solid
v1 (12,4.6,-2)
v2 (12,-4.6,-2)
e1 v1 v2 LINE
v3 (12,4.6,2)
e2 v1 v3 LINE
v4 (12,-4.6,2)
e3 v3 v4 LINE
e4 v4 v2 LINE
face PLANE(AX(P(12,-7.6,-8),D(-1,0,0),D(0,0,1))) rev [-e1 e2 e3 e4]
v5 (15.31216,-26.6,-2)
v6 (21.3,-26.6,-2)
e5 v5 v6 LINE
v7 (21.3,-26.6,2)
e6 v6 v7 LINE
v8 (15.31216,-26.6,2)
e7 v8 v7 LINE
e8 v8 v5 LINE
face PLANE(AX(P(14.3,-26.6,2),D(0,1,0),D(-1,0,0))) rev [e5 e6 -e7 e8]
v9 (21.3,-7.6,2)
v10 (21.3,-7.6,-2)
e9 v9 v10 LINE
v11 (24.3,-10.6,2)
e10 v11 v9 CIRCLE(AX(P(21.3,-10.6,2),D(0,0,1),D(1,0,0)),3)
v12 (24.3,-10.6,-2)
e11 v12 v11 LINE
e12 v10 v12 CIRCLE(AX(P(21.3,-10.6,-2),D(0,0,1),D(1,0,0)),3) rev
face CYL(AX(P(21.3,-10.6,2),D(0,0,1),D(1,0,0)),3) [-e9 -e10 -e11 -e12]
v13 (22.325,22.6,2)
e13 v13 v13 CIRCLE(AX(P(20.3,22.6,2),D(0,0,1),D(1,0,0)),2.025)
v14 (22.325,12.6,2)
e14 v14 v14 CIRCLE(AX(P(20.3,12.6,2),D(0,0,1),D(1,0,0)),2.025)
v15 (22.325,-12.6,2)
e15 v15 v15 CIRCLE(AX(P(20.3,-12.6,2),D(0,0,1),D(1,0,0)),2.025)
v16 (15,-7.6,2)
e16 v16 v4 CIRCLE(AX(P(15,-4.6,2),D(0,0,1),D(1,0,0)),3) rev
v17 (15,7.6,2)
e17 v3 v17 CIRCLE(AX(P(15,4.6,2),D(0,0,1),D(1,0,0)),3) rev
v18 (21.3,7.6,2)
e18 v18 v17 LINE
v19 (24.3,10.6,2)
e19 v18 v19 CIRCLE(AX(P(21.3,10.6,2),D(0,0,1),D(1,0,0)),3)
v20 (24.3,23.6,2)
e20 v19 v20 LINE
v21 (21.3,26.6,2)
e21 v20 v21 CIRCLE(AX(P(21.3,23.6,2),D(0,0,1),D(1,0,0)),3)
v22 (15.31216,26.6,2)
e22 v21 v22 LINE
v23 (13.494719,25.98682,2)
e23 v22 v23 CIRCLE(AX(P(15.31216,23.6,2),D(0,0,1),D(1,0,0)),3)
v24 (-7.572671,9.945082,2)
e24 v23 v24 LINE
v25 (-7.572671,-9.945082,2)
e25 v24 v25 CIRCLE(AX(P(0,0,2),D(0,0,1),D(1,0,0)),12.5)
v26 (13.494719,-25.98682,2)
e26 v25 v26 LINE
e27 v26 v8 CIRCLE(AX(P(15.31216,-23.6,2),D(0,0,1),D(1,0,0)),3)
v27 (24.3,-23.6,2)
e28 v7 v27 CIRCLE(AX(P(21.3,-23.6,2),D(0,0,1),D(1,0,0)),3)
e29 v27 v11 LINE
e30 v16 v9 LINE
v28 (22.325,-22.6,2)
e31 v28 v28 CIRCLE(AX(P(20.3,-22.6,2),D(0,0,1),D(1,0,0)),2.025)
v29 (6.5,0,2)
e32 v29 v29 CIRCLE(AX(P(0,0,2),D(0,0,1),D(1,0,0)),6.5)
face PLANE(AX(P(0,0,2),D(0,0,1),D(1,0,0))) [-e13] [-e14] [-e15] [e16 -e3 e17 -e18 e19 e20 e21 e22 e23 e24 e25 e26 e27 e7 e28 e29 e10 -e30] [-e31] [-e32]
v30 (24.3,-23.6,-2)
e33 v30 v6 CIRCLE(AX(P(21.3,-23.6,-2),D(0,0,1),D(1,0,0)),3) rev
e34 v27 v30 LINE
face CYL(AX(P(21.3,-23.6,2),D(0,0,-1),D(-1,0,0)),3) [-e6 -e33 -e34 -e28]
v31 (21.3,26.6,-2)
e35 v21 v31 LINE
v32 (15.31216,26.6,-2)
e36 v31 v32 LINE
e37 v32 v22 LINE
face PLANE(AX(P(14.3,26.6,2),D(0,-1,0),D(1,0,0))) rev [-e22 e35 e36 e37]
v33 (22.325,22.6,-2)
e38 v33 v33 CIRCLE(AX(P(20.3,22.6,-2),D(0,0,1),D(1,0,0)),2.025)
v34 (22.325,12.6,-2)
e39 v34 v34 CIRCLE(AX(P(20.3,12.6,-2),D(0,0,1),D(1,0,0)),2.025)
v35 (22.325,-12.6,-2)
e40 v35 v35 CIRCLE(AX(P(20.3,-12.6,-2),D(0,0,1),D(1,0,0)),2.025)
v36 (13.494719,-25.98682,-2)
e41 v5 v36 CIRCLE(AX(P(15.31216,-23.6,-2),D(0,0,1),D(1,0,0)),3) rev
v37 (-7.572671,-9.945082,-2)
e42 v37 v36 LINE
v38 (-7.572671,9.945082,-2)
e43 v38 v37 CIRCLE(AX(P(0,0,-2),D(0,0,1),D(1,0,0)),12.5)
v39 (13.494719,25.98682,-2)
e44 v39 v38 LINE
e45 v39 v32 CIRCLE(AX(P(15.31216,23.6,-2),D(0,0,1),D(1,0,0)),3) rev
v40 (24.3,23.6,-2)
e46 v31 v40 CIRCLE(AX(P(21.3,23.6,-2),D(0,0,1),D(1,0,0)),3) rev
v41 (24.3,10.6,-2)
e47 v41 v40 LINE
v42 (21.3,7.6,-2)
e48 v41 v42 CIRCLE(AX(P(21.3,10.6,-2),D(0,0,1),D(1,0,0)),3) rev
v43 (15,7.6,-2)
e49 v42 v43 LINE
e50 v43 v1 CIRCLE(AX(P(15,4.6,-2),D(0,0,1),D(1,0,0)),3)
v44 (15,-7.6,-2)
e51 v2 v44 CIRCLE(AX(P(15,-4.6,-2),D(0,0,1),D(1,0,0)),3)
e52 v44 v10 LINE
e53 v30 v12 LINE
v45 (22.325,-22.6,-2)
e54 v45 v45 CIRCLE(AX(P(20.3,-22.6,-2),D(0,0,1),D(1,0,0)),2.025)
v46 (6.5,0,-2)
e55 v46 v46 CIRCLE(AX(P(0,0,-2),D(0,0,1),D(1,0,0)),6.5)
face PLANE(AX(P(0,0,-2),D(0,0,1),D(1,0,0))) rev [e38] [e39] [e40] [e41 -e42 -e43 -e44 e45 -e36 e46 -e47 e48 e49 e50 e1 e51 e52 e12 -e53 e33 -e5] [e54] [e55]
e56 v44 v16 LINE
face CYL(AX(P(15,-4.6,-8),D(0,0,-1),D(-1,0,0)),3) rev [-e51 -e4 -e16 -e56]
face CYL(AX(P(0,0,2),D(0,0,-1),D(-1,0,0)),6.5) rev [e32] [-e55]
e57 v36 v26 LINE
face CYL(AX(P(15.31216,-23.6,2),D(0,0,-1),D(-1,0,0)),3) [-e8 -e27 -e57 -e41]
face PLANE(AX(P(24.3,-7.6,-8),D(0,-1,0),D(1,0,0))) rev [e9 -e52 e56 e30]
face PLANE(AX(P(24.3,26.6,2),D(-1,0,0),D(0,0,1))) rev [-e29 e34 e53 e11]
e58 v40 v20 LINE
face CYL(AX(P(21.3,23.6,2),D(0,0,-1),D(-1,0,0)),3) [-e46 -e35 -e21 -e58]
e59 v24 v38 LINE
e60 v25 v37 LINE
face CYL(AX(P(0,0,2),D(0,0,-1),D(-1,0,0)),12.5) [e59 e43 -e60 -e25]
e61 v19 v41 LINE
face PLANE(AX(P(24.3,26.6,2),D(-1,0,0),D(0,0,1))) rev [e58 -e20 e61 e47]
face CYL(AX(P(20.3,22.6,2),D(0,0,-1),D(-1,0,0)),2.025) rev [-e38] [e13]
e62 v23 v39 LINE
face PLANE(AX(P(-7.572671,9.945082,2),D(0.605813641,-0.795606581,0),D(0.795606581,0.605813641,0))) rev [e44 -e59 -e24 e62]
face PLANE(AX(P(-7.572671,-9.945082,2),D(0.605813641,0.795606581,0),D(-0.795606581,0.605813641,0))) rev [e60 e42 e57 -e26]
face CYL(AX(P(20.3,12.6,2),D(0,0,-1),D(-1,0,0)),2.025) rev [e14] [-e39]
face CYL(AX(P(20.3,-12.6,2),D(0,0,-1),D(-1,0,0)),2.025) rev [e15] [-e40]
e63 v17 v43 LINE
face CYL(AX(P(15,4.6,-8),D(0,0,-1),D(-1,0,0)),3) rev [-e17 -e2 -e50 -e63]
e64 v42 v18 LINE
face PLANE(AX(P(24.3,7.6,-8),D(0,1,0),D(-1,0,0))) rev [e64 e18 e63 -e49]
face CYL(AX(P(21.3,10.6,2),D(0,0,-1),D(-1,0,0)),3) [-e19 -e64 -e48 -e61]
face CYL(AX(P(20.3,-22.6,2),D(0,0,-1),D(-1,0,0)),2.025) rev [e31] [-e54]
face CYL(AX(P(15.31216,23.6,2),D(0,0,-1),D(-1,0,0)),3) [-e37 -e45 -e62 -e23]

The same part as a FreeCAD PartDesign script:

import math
import FreeCAD as App
import Part
import Sketcher
from FreeCAD import Vector
Q = App.Units.Quantity


def edges_at(feature, points):
    """Names of the edges that pass closest to the given points."""
    edges = feature.Shape.Edges
    near = lambda p: min(range(len(edges)), key=lambda i: edges[i].distToShape(Part.Vertex(*p))[0])
    return sorted({f"Edge{near(p) + 1}" for p in points})

doc = App.newDocument("Part")
body = doc.addObject("PartDesign::Body", "Body")

sketch1 = doc.addObject("Sketcher::SketchObject", "Sketch")
body.addObject(sketch1)
sketch1.AttachmentSupport = (doc.XY_Plane, [""])
sketch1.MapMode = "FlatFace"
sketch1.addGeometry(Part.LineSegment(Vector(14.3, 26.6, 0), Vector(-7.6, 9.9, 0)), False)
sketch1.addGeometry(Part.ArcOfCircle(Part.Circle(Vector(0, 0, 0), Vector(0, 0, 1), 12.5), math.radians(127), math.radians(233)), False)
sketch1.addGeometry(Part.LineSegment(Vector(-7.6, -9.9, 0), Vector(14.3, -26.6, 0)), False)
sketch1.addGeometry(Part.LineSegment(Vector(14.3, -26.6, 0), Vector(24.3, -26.6, 0)), False)
sketch1.addGeometry(Part.LineSegment(Vector(24.3, -26.6, 0), Vector(24.3, 26.6, 0)), False)
sketch1.addGeometry(Part.LineSegment(Vector(24.3, 26.6, 0), Vector(14.3, 26.6, 0)), False)
sketch1.addGeometry(Part.Circle(Vector(20.3, -22.6, 0), Vector(0, 0, 1), 2), False)
sketch1.addGeometry(Part.Circle(Vector(20.3, -12.6, 0), Vector(0, 0, 1), 2), False)
sketch1.addGeometry(Part.Circle(Vector(0, 0, 0), Vector(0, 0, 1), 6.5), False)
sketch1.addGeometry(Part.Circle(Vector(20.3, 12.6, 0), Vector(0, 0, 1), 2), False)
sketch1.addGeometry(Part.Circle(Vector(20.3, 22.6, 0), Vector(0, 0, 1), 2), False)
sketch1.addConstraint(Sketcher.Constraint("Tangent", 0, 2, 1, 1))
sketch1.addConstraint(Sketcher.Constraint("Tangent", 1, 2, 2, 1))
sketch1.addConstraint(Sketcher.Constraint("Coincident", 2, 2, 3, 1))
sketch1.addConstraint(Sketcher.Constraint("Coincident", 3, 2, 4, 1))
sketch1.addConstraint(Sketcher.Constraint("Coincident", 4, 2, 5, 1))
sketch1.addConstraint(Sketcher.Constraint("Coincident", 5, 2, 0, 1))
sketch1.addConstraint(Sketcher.Constraint("Horizontal", 3))
sketch1.addConstraint(Sketcher.Constraint("Vertical", 4))
sketch1.addConstraint(Sketcher.Constraint("Horizontal", 5))
sketch1.addConstraint(Sketcher.Constraint("Coincident", 1, 3, -1, 1))
sketch1.addConstraint(Sketcher.Constraint("Coincident", 8, 3, -1, 1))
sketch1.addConstraint(Sketcher.Constraint("Equal", 6, 7))
sketch1.addConstraint(Sketcher.Constraint("Equal", 7, 9))
sketch1.addConstraint(Sketcher.Constraint("Equal", 9, 10))
sketch1.addConstraint(Sketcher.Constraint("Symmetric", 7, 3, 9, 3, -1))
sketch1.addConstraint(Sketcher.Constraint("Symmetric", 6, 3, 10, 3, -1))
sketch1.addConstraint(Sketcher.Constraint("Symmetric", 2, 2, 5, 2, -1))
sketch1.addConstraint(Sketcher.Constraint("Vertical", 6, 3, 7, 3))
sketch1.addConstraint(Sketcher.Constraint("Diameter", 8, Q("13 mm")))
sketch1.addConstraint(Sketcher.Constraint("Radius", 1, Q("12.5 mm")))
sketch1.addConstraint(Sketcher.Constraint("Diameter", 6, Q("4.05 mm")))
sketch1.addConstraint(Sketcher.Constraint("DistanceX", 3, 1, 3, 2, Q("10 mm")))
sketch1.addConstraint(Sketcher.Constraint("DistanceY", 4, 1, 4, 2, Q("53.2 mm")))
sketch1.addConstraint(Sketcher.Constraint("DistanceY", 6, 3, 7, 3, Q("10 mm")))
sketch1.addConstraint(Sketcher.Constraint("DistanceX", 2, 2, 6, 3, Q("6 mm")))
sketch1.addConstraint(Sketcher.Constraint("DistanceY", 2, 2, 6, 3, Q("4 mm")))
sketch1.addConstraint(Sketcher.Constraint("DistanceX", -1, 1, 6, 3, Q("20.3 mm")))
pad1 = doc.addObject("PartDesign::Pad", "Pad")
body.addObject(pad1)
pad1.Profile = sketch1
pad1.Length = 4
pad1.Midplane = True

sketch2 = doc.addObject("Sketcher::SketchObject", "Sketch001")
body.addObject(sketch2)
sketch2.AttachmentSupport = (doc.XY_Plane, [""])
sketch2.MapMode = "FlatFace"
sketch2.AttachmentOffset = App.Placement(Vector(0, 0, 2), App.Rotation())
sketch2.addGeometry(Part.LineSegment(Vector(12, 8, 0), Vector(12, -8, 0)), False)
sketch2.addGeometry(Part.LineSegment(Vector(12, -8, 0), Vector(24, -8, 0)), False)
sketch2.addGeometry(Part.LineSegment(Vector(24, -8, 0), Vector(24, 8, 0)), False)
sketch2.addGeometry(Part.LineSegment(Vector(24, 8, 0), Vector(12, 8, 0)), False)
sketch2.addConstraint(Sketcher.Constraint("Coincident", 0, 2, 1, 1))
sketch2.addConstraint(Sketcher.Constraint("Coincident", 1, 2, 2, 1))
sketch2.addConstraint(Sketcher.Constraint("Coincident", 2, 2, 3, 1))
sketch2.addConstraint(Sketcher.Constraint("Coincident", 3, 2, 0, 1))
sketch2.addConstraint(Sketcher.Constraint("Vertical", 0))
sketch2.addConstraint(Sketcher.Constraint("Horizontal", 1))
sketch2.addConstraint(Sketcher.Constraint("Vertical", 2))
sketch2.addConstraint(Sketcher.Constraint("Horizontal", 3))
sketch2.addConstraint(Sketcher.Constraint("DistanceX", 1, 1, 1, 2, Q("12.3 mm")))
sketch2.addConstraint(Sketcher.Constraint("DistanceY", 0, 2, 0, 1, Q("15.2 mm")))
sketch2.addConstraint(Sketcher.Constraint("DistanceX", -1, 1, 0, 2, Q("12 mm")))
sketch2.addConstraint(Sketcher.Constraint("DistanceY", 0, 2, -1, 1, Q("7.6 mm")))
pocket1 = doc.addObject("PartDesign::Pocket", "Pocket")
body.addObject(pocket1)
pocket1.Profile = sketch2
pocket1.Length = 10
doc.recompute()

fillet = doc.addObject("PartDesign::Fillet", "Fillet")
body.addObject(fillet)
fillet.Base = (pocket1, edges_at(pocket1, [
    (24.3, -26.6, 0),
    (14.3, -26.6, 0),
    (14.3, 26.6, 0),
    (24.3, 26.6, 0),
    (24.3, 7.6, 0),
    (24.3, -7.6, 0),
    (12, -7.6, 0),
    (12, 7.6, 0),
]))
fillet.Radius = 3

doc.recompute()
